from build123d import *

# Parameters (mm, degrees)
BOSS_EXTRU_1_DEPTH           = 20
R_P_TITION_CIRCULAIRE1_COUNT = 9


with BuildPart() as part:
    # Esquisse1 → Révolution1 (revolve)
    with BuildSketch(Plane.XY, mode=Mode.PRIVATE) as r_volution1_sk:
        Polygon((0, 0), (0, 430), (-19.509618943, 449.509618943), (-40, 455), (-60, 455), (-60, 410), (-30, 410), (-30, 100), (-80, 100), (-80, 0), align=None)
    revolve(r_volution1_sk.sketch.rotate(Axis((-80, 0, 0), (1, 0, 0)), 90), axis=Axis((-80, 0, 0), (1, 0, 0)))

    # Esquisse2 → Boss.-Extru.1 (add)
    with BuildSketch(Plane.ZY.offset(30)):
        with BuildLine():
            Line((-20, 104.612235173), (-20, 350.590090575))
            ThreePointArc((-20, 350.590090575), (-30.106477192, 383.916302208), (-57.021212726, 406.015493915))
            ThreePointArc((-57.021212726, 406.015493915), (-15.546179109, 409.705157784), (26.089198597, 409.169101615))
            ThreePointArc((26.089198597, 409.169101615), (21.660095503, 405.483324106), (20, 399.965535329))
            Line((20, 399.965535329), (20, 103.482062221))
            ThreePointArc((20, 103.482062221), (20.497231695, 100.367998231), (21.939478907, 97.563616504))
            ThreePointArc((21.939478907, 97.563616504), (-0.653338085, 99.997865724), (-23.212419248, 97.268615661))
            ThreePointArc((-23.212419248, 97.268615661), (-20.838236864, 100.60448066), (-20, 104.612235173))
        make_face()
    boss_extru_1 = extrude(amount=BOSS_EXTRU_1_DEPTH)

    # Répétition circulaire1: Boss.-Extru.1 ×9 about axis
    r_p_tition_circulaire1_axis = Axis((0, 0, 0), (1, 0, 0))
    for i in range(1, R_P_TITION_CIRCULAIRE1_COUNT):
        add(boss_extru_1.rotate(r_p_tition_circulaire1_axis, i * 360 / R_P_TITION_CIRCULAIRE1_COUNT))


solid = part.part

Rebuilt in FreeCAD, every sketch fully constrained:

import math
import FreeCAD as App
import Part
import Sketcher
from FreeCAD import Vector
Q = App.Units.Quantity

doc = App.newDocument("Part")
body = doc.addObject("PartDesign::Body", "Body")

# Sketch on XY plane
sketch1 = doc.addObject("Sketcher::SketchObject", "Sketch")
body.addObject(sketch1)
sketch1.AttachmentSupport = (doc.XY_Plane, [""])
sketch1.MapMode = "FlatFace"
sketch1.addGeometry(Part.LineSegment(Vector(0, 0, 0), Vector(0, 430, 0)), False)
sketch1.addGeometry(Part.LineSegment(Vector(0, 430, 0), Vector(-20, 450, 0)), False)
sketch1.addGeometry(Part.LineSegment(Vector(-20, 450, 0), Vector(-40, 455, 0)), False)
sketch1.addGeometry(Part.LineSegment(Vector(-40, 455, 0), Vector(-60, 455, 0)), False)
sketch1.addGeometry(Part.LineSegment(Vector(-60, 455, 0), Vector(-60, 410, 0)), False)
sketch1.addGeometry(Part.LineSegment(Vector(-60, 410, 0), Vector(-30, 410, 0)), False)
sketch1.addGeometry(Part.LineSegment(Vector(-30, 410, 0), Vector(-30, 100, 0)), False)
sketch1.addGeometry(Part.LineSegment(Vector(-30, 100, 0), Vector(-80, 100, 0)), False)
sketch1.addGeometry(Part.LineSegment(Vector(-80, 100, 0), Vector(-80, 0, 0)), False)
sketch1.addGeometry(Part.LineSegment(Vector(-80, 0, 0), Vector(0, 0, 0)), False)
sketch1.addConstraint(Sketcher.Constraint("Coincident", 0, 2, 1, 1))
sketch1.addConstraint(Sketcher.Constraint("Coincident", 1, 2, 2, 1))
sketch1.addConstraint(Sketcher.Constraint("Coincident", 2, 2, 3, 1))
sketch1.addConstraint(Sketcher.Constraint("Coincident", 3, 2, 4, 1))
sketch1.addConstraint(Sketcher.Constraint("Coincident", 4, 2, 5, 1))
sketch1.addConstraint(Sketcher.Constraint("Coincident", 5, 2, 6, 1))
sketch1.addConstraint(Sketcher.Constraint("Coincident", 6, 2, 7, 1))
sketch1.addConstraint(Sketcher.Constraint("Coincident", 7, 2, 8, 1))
sketch1.addConstraint(Sketcher.Constraint("Coincident", 8, 2, 9, 1))
sketch1.addConstraint(Sketcher.Constraint("Coincident", 9, 2, 0, 1))
sketch1.addConstraint(Sketcher.Constraint("Vertical", 0))
sketch1.addConstraint(Sketcher.Constraint("Horizontal", 3))
sketch1.addConstraint(Sketcher.Constraint("Vertical", 4))
sketch1.addConstraint(Sketcher.Constraint("Horizontal", 5))
sketch1.addConstraint(Sketcher.Constraint("Vertical", 6))
sketch1.addConstraint(Sketcher.Constraint("Horizontal", 7))
sketch1.addConstraint(Sketcher.Constraint("Vertical", 8))
sketch1.addConstraint(Sketcher.Constraint("Horizontal", 9))
sketch1.addConstraint(Sketcher.Constraint("Coincident", 9, 2, -1, 1))
sketch1.addConstraint(Sketcher.Constraint("DistanceX", 3, 2, 3, 1, Q("20 mm")))
sketch1.addConstraint(Sketcher.Constraint("DistanceX", 5, 1, 5, 2, Q("30 mm")))
sketch1.addConstraint(Sketcher.Constraint("DistanceX", 7, 2, 7, 1, Q("50 mm")))
sketch1.addConstraint(Sketcher.Constraint("DistanceX", 9, 1, 9, 2, Q("80 mm")))
sketch1.addConstraint(Sketcher.Constraint("DistanceY", 0, 1, 0, 2, Q("430 mm")))
sketch1.addConstraint(Sketcher.Constraint("DistanceY", 4, 2, 4, 1, Q("45 mm")))
sketch1.addConstraint(Sketcher.Constraint("DistanceY", 6, 2, 6, 1, Q("310 mm")))
sketch1.addConstraint(Sketcher.Constraint("DistanceY", 8, 2, 8, 1, Q("100 mm")))
sketch1.addConstraint(Sketcher.Constraint("Angle", 1, Q("135 deg")))
sketch1.addConstraint(Sketcher.Constraint("Angle", 2, Q("165 deg")))
revolution = doc.addObject("PartDesign::Revolution", "Revolution")
body.addObject(revolution)
revolution.Profile = sketch1
revolution.ReferenceAxis = (sketch1, ["H_Axis"])
revolution.Angle = 360

# Sketch on YZ plane
sketch2 = doc.addObject("Sketcher::SketchObject", "Sketch001")
body.addObject(sketch2)
sketch2.AttachmentSupport = (doc.YZ_Plane, [""])
sketch2.MapMode = "FlatFace"
sketch2.AttachmentOffset = App.Placement(Vector(0, 0, -30), App.Rotation())
sketch2.addGeometry(Part.LineSegment(Vector(351, -20, 0), Vector(105, -20, 0)), False)
sketch2.addGeometry(Part.ArcOfCircle(Part.Circle(Vector(105, -30, 0), Vector(0, 0, 1), 10), math.radians(90), math.radians(137)), False)
sketch2.addGeometry(Part.ArcOfCircle(Part.Circle(Vector(0, 0, 0), Vector(0, 0, 1), 100), math.radians(-13), math.radians(13)), False)
sketch2.addGeometry(Part.ArcOfCircle(Part.Circle(Vector(103, 30, 0), Vector(0, 0, 1), 10), math.radians(-126), math.radians(-90)), False)
sketch2.addGeometry(Part.LineSegment(Vector(103, 20, 0), Vector(400, 20, 0)), False)
sketch2.addGeometry(Part.ArcOfCircle(Part.Circle(Vector(400, 30, 0), Vector(0, 0, 1), 10), math.radians(-90), math.radians(-23)), False)
sketch2.addGeometry(Part.ArcOfCircle(Part.Circle(Vector(0, 0, 0), Vector(0, 0, 1), 410), math.radians(-7.99), math.radians(3.65)), False)
sketch2.addGeometry(Part.ArcOfCircle(Part.Circle(Vector(351, -80, 0), Vector(0, 0, 1), 60), math.radians(23), math.radians(90)), False)
sketch2.addConstraint(Sketcher.Constraint("Tangent", 0, 2, 1, 1))
sketch2.addConstraint(Sketcher.Constraint("Coincident", 1, 2, 2, 1))
sketch2.addConstraint(Sketcher.Constraint("Coincident", 2, 2, 3, 1))
sketch2.addConstraint(Sketcher.Constraint("Tangent", 3, 2, 4, 1))
sketch2.addConstraint(Sketcher.Constraint("Tangent", 4, 2, 5, 1))
sketch2.addConstraint(Sketcher.Constraint("Coincident", 5, 2, 6, 2))
sketch2.addConstraint(Sketcher.Constraint("Coincident", 6, 1, 7, 1))
sketch2.addConstraint(Sketcher.Constraint("Tangent", 7, 2, 0, 1))
sketch2.addConstraint(Sketcher.Constraint("Horizontal", 0))
sketch2.addConstraint(Sketcher.Constraint("Horizontal", 4))
sketch2.addConstraint(Sketcher.Constraint("Coincident", 2, 3, -1, 1))
sketch2.addConstraint(Sketcher.Constraint("Coincident", 6, 3, -1, 1))
sketch2.addConstraint(Sketcher.Constraint("Equal", 1, 3))
sketch2.addConstraint(Sketcher.Constraint("Equal", 3, 5))
sketch2.addConstraint(Sketcher.Constraint("Radius", 1, Q("10 mm")))
sketch2.addConstraint(Sketcher.Constraint("Radius", 2, Q("100 mm")))
sketch2.addConstraint(Sketcher.Constraint("Radius", 6, Q("410 mm")))
sketch2.addConstraint(Sketcher.Constraint("Radius", 7, Q("60 mm")))
sketch2.addConstraint(Sketcher.Constraint("DistanceY", 1, 3, -1, 1, Q("30 mm")))
sketch2.addConstraint(Sketcher.Constraint("DistanceY", -1, 1, 3, 3, Q("30 mm")))
sketch2.addConstraint(Sketcher.Constraint("DistanceX", 1, 2, 2, 2, Q("0.295001 mm")))
sketch2.addConstraint(Sketcher.Constraint("DistanceX", -1, 1, 5, 2, Q("409.169102 mm")))
sketch2.addConstraint(Sketcher.Constraint("DistanceX", 1, 3, 5, 3, Q("295.3533 mm")))
sketch2.addConstraint(Sketcher.Constraint("DistanceX", 0, 2, 0, 1, Q("245.977855 mm")))
pad1 = doc.addObject("PartDesign::Pad", "Pad")
body.addObject(pad1)
pad1.Profile = sketch2
pad1.Length = 20
pad1.Reversed = True
doc.recompute()

polarpattern = doc.addObject("PartDesign::PolarPattern", "PolarPattern")
body.addObject(polarpattern)
polarpattern.Originals = [pad1]
polarpattern.Axis = (doc.X_Axis, [""])
polarpattern.Angle = 360
polarpattern.Occurrences = 9
body.Tip = polarpattern

doc.recompute()
